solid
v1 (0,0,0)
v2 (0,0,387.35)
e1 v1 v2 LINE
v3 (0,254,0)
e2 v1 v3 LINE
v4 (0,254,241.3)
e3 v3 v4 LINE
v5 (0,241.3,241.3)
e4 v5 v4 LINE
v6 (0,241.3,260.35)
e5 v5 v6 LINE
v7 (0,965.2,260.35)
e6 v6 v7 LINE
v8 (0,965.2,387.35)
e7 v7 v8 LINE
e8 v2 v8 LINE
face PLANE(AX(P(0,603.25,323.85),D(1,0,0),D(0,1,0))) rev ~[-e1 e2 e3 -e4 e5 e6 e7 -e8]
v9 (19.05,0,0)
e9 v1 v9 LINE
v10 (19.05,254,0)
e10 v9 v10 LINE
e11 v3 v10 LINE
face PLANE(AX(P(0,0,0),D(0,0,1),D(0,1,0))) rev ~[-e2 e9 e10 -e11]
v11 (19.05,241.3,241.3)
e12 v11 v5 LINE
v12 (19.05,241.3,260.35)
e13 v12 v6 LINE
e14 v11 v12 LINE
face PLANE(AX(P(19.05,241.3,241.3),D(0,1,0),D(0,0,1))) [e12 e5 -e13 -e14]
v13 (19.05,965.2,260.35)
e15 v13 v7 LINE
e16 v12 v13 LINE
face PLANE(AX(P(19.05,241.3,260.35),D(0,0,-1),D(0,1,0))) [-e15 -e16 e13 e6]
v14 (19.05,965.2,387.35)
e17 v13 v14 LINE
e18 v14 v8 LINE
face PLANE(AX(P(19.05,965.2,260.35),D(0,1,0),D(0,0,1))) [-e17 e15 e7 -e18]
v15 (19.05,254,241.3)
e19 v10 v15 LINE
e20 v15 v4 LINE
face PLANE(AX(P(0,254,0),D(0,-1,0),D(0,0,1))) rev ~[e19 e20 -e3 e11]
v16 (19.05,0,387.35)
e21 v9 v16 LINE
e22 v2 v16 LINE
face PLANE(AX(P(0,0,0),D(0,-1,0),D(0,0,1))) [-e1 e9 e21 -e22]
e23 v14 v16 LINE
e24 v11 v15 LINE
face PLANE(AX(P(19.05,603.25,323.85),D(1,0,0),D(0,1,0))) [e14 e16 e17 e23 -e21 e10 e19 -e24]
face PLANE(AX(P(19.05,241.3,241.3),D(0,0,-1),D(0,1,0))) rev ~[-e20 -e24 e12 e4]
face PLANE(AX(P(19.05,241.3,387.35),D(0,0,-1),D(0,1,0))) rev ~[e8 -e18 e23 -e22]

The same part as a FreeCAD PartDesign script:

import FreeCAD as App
import Part
import Sketcher
from FreeCAD import Vector
Q = App.Units.Quantity

doc = App.newDocument("Part")
body = doc.addObject("PartDesign::Body", "Body")

# Sketch on YZ plane
sketch1 = body.newObject("Sketcher::SketchObject", "Sketch")
sketch1.AttachmentSupport = (doc.getObject("YZ_Plane"), [""])
sketch1.MapMode = "FlatFace"
sketch1.addGeometry([
    Part.LineSegment(Vector(0, 387, 0), Vector(0, 0, 0)),
    Part.LineSegment(Vector(0, 0, 0), Vector(254, 0, 0)),
    Part.LineSegment(Vector(254, 0, 0), Vector(254, 387, 0)),
    Part.LineSegment(Vector(254, 387, 0), Vector(0, 387, 0)),
], False)
sketch1.addConstraint([
    Sketcher.Constraint("Coincident", 0, 2, 1, 1),
    Sketcher.Constraint("Coincident", 1, 2, 2, 1),
    Sketcher.Constraint("Coincident", 2, 2, 3, 1),
    Sketcher.Constraint("Coincident", 3, 2, 0, 1),
    Sketcher.Constraint("Vertical", 0),
    Sketcher.Constraint("Horizontal", 1),
    Sketcher.Constraint("Vertical", 2),
    Sketcher.Constraint("Horizontal", 3),
    Sketcher.Constraint("Coincident", 0, 2, -1, 1),
    Sketcher.Constraint("DistanceX", 1, 1, 1, 2, Q("10 in")),
    Sketcher.Constraint("DistanceY", 0, 2, 0, 1, Q("15.25 in")),
])
pad1 = body.newObject("PartDesign::Pad", "Pad")
pad1.Profile = sketch1
pad1.Length = Q("0.75 in")

# Sketch on YZ plane
sketch2 = body.newObject("Sketcher::SketchObject", "Sketch001")
sketch2.AttachmentSupport = (doc.getObject("YZ_Plane"), [""])
sketch2.MapMode = "FlatFace"
sketch2.AttachmentOffset = App.Placement(Vector(0, 0, 0.75 * 25.4), App.Rotation())
sketch2.addGeometry([
    Part.LineSegment(Vector(241, 387, 0), Vector(241, 241, 0)),
    Part.LineSegment(Vector(241, 241, 0), Vector(254, 241, 0)),
    Part.LineSegment(Vector(254, 241, 0), Vector(254, 387, 0)),
    Part.LineSegment(Vector(254, 387, 0), Vector(241, 387, 0)),
], False)
sketch2.addConstraint([
    Sketcher.Constraint("Coincident", 0, 2, 1, 1),
    Sketcher.Constraint("Coincident", 1, 2, 2, 1),
    Sketcher.Constraint("Coincident", 2, 2, 3, 1),
    Sketcher.Constraint("Coincident", 3, 2, 0, 1),
    Sketcher.Constraint("Vertical", 0),
    Sketcher.Constraint("Horizontal", 1),
    Sketcher.Constraint("Vertical", 2),
    Sketcher.Constraint("Horizontal", 3),
    Sketcher.Constraint("DistanceX", 1, 1, 1, 2, Q("0.5 in")),
    Sketcher.Constraint("DistanceX", -1, 1, 1, 2, Q("10 in")),
    Sketcher.Constraint("DistanceY", 0, 2, 0, 1, Q("5.75 in")),
    Sketcher.Constraint("DistanceY", -1, 1, 0, 2, Q("9.5 in")),
])
pocket1 = body.newObject("PartDesign::Pocket", "Pocket")
pocket1.Profile = sketch2
pocket1.Type = "ThroughAll"

# Sketch on YZ plane
sketch3 = body.newObject("Sketcher::SketchObject", "Sketch002")
sketch3.AttachmentSupport = (doc.getObject("YZ_Plane"), [""])
sketch3.MapMode = "FlatFace"
sketch3.AttachmentOffset = App.Placement(Vector(0, 0, 0.75 * 25.4), App.Rotation())
sketch3.addGeometry([
    Part.LineSegment(Vector(241, 387, 0), Vector(241, 260, 0)),
    Part.LineSegment(Vector(241, 260, 0), Vector(965, 260, 0)),
    Part.LineSegment(Vector(965, 260, 0), Vector(965, 387, 0)),
    Part.LineSegment(Vector(965, 387, 0), Vector(241, 387, 0)),
], False)
sketch3.addConstraint([
    Sketcher.Constraint("Coincident", 0, 2, 1, 1),
    Sketcher.Constraint("Coincident", 1, 2, 2, 1),
    Sketcher.Constraint("Coincident", 2, 2, 3, 1),
    Sketcher.Constraint("Coincident", 3, 2, 0, 1),
    Sketcher.Constraint("Vertical", 0),
    Sketcher.Constraint("Horizontal", 1),
    Sketcher.Constraint("Vertical", 2),
    Sketcher.Constraint("Horizontal", 3),
    Sketcher.Constraint("DistanceY", 0, 2, 0, 1, Q("5 in")),
    Sketcher.Constraint("DistanceX", 1, 1, 1, 2, Q("28.5 in")),
    Sketcher.Constraint("DistanceX", -1, 1, 1, 2, Q("38 in")),
    Sketcher.Constraint("DistanceY", -1, 1, 0, 2, Q("10.25 in")),
])
pad2 = body.newObject("PartDesign::Pad", "Pad001")
pad2.Profile = sketch3
pad2.Length = Q("0.75 in")
pad2.Reversed = True

doc.recompute()
